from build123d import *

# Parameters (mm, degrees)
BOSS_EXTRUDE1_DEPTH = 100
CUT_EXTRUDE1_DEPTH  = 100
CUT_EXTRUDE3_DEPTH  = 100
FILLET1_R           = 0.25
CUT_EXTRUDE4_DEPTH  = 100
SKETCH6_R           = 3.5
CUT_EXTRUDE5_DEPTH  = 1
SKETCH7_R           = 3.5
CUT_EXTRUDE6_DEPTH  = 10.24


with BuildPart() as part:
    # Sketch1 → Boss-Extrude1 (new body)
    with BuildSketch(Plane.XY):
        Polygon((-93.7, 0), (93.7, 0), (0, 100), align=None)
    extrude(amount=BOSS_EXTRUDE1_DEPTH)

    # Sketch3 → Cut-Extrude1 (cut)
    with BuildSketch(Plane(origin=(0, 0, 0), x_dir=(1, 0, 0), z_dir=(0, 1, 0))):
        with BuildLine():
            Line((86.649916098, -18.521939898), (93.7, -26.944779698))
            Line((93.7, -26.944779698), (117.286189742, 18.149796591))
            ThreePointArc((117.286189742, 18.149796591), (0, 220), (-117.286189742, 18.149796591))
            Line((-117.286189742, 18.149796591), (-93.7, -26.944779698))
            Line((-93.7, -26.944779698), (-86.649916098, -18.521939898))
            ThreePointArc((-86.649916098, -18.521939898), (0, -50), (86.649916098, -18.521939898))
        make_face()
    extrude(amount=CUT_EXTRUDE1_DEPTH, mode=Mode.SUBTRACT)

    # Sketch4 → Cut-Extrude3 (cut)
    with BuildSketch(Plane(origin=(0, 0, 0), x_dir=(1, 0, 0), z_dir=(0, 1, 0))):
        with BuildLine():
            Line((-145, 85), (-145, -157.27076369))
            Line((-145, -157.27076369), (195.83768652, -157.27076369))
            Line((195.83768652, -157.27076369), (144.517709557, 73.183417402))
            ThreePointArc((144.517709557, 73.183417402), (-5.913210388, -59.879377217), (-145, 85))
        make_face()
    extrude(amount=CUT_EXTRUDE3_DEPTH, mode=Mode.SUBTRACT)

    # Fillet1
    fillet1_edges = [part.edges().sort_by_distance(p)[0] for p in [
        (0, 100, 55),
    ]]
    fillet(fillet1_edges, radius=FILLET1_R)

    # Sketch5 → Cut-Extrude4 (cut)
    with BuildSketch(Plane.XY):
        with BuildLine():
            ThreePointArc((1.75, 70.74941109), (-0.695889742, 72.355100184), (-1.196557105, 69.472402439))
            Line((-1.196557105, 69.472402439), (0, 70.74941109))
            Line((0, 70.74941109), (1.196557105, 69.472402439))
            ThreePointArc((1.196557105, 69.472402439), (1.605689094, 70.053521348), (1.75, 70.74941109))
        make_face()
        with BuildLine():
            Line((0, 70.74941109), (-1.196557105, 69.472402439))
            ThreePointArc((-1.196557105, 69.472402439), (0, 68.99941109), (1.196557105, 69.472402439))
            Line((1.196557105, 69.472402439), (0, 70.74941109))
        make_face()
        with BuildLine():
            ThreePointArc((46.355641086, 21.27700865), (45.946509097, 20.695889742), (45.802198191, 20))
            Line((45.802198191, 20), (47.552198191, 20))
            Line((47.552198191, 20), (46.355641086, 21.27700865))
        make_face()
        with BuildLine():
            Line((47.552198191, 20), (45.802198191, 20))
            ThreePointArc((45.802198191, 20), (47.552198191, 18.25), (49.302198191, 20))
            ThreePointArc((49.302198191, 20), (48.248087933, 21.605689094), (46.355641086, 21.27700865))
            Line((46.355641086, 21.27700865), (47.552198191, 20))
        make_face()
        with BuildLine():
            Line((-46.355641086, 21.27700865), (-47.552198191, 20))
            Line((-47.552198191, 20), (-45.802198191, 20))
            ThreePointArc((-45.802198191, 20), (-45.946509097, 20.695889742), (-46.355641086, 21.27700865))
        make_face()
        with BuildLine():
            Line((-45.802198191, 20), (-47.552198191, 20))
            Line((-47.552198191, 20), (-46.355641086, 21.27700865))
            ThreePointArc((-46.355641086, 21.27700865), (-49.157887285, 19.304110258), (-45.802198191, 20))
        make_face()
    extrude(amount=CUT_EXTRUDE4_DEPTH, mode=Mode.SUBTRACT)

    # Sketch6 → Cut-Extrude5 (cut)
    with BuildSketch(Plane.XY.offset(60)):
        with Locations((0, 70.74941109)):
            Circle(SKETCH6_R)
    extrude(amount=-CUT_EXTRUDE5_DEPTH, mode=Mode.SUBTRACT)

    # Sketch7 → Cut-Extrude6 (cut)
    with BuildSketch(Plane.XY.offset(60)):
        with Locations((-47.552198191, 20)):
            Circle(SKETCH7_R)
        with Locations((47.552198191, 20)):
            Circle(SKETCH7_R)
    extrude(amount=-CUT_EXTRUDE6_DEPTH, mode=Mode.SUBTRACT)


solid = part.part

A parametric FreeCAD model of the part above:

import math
import FreeCAD as App
import Part
import Sketcher

V = App.Vector
Q = App.Units.Quantity


def edges_at(feature, points):
    """Names of the edges that pass closest to the given points."""
    edges = feature.Shape.Edges
    near = lambda p: min(range(len(edges)), key=lambda i: edges[i].distToShape(Part.Vertex(*p))[0])
    return sorted({f"Edge{near(p) + 1}" for p in points})


def add_polygon(sketch, points):
    """Adds a closed chain of lines whose ends are joined by coincident constraints."""
    first, n = sketch.GeometryCount, len(points)
    for a, b in zip(points, points[1:] + points[:1]):
        sketch.addGeometry(Part.LineSegment(App.Vector(*a, 0), App.Vector(*b, 0)), False)
    for i in range(n):
        sketch.addConstraint(Sketcher.Constraint("Coincident", first + i, 2, first + (i + 1) % n, 1))

doc = App.newDocument("Part")
body = doc.addObject("PartDesign::Body", "Body")

sketch1 = body.newObject("Sketcher::SketchObject", "Sketch")
sketch1.AttachmentSupport = (doc.getObject("XY_Plane"), [""])
sketch1.MapMode = "FlatFace"
add_polygon(sketch1, [(-94, 0), (94, 0), (0, 100)])
sketch1.addConstraint([
    Sketcher.Constraint("Horizontal", 0),
    Sketcher.Constraint("Symmetric", 0, 2, 2, 2, -1, 1),
    Sketcher.Constraint("PointOnObject", 1, 2, -2),
    Sketcher.Constraint("DistanceX", 0, 1, 0, 2, Q("187.4 mm")),
    Sketcher.Constraint("DistanceY", -1, 1, 1, 2, Q("100 mm")),
])
pad1 = body.newObject("PartDesign::Pad", "Pad")
pad1.Profile = sketch1
pad1.Length = 100

sketch2 = body.newObject("Sketcher::SketchObject", "Sketch001")
sketch2.AttachmentSupport = (doc.getObject("XZ_Plane"), [""])
sketch2.MapMode = "FlatFace"
sketch2.addGeometry([
    Part.LineSegment(V(87, 19, 0), V(94, 27, 0)),
    Part.LineSegment(V(94, 27, 0), V(117, -18, 0)),
    Part.ArcOfCircle(Part.Circle(V(0, -85, 0), V(0, 0, 1), 135), math.radians(150), math.radians(390)),
    Part.LineSegment(V(-117, -18, 0), V(-94, 27, 0)),
    Part.LineSegment(V(-94, 27, 0), V(-87, 19, 0)),
    Part.ArcOfCircle(Part.Circle(V(0, -85, 0), V(0, 0, 1), 135), math.radians(50), math.radians(130)),
], False)
sketch2.addConstraint([
    Sketcher.Constraint("Coincident", 0, 2, 1, 1),
    Sketcher.Constraint("Coincident", 1, 2, 2, 2),
    Sketcher.Constraint("Coincident", 2, 1, 3, 1),
    Sketcher.Constraint("Coincident", 3, 2, 4, 1),
    Sketcher.Constraint("Coincident", 4, 2, 5, 2),
    Sketcher.Constraint("Coincident", 5, 1, 0, 1),
    Sketcher.Constraint("Coincident", 5, 3, 2, 3),
    Sketcher.Constraint("Equal", 2, 5),
    Sketcher.Constraint("Symmetric", 1, 2, 2, 1, -2),
    Sketcher.Constraint("Symmetric", 0, 2, 3, 2, -2),
    Sketcher.Constraint("Horizontal", 4, 2, 5, 1),
    Sketcher.Constraint("Radius", 2, Q("135 mm")),
    Sketcher.Constraint("DistanceY", 2, 3, -1, 1, Q("85 mm")),
    Sketcher.Constraint("DistanceX", -1, 1, 0, 2, Q("93.7 mm")),
    Sketcher.Constraint("Angle", 0, Q("50.07 deg")),
    Sketcher.Constraint("DistanceY", -1, 1, 0, 2, Q("26.94478 mm")),
    Sketcher.Constraint("DistanceX", -1, 1, 1, 2, Q("117.28619 mm")),
])
pocket1 = body.newObject("PartDesign::Pocket", "Pocket")
pocket1.Profile = sketch2
pocket1.Length = 100

sketch3 = body.newObject("Sketcher::SketchObject", "Sketch002")
sketch3.AttachmentSupport = (doc.getObject("XZ_Plane"), [""])
sketch3.MapMode = "FlatFace"
sketch3.addGeometry([
    Part.LineSegment(V(-145, -85, 0), V(-145, 157, 0)),
    Part.LineSegment(V(-145, 157, 0), V(196, 157, 0)),
    Part.LineSegment(V(196, 157, 0), V(145, -73, 0)),
    Part.ArcOfCircle(Part.Circle(V(0, -85, 0), V(0, 0, 1), 145), math.radians(5), math.radians(180)),
], False)
sketch3.addConstraint([
    Sketcher.Constraint("Coincident", 0, 2, 1, 1),
    Sketcher.Constraint("Coincident", 1, 2, 2, 1),
    Sketcher.Constraint("Coincident", 2, 2, 3, 1),
    Sketcher.Constraint("Tangent", 3, 2, 0, 1),
    Sketcher.Constraint("Vertical", 0),
    Sketcher.Constraint("Horizontal", 1),
    Sketcher.Constraint("PointOnObject", 3, 3, -2),
    Sketcher.Constraint("Radius", 3, Q("145 mm")),
    Sketcher.Constraint("DistanceY", 3, 3, -1, 1, Q("85 mm")),
    Sketcher.Constraint("Distance", 2, Q("236.099279 mm")),
    Sketcher.Constraint("DistanceX", 1, 1, 1, 2, Q("340.837687 mm")),
    Sketcher.Constraint("DistanceY", 0, 1, 0, 2, Q("242.270764 mm")),
])
pocket2 = body.newObject("PartDesign::Pocket", "Pocket001")
pocket2.Profile = sketch3
pocket2.Length = 100
doc.recompute()

fillet = body.newObject("PartDesign::Fillet", "Fillet")
fillet.Base = (pocket2, edges_at(pocket2, [(0, 100, 55)]))
fillet.Radius = 0.25

sketch4 = body.newObject("Sketcher::SketchObject", "Sketch003")
sketch4.AttachmentSupport = (doc.getObject("XY_Plane"), [""])
sketch4.MapMode = "FlatFace"
sketch4.addGeometry([
    Part.ArcOfCircle(Part.Circle(V(0, 70.7, 0), V(0, 0, 1), 1.8), math.radians(0), math.radians(227)),
    Part.ArcOfCircle(Part.Circle(V(0, 70.7, 0), V(0, 0, 1), 1.8), math.radians(-133), math.radians(-47)),
    Part.ArcOfCircle(Part.Circle(V(0, 70.7, 0), V(0, 0, 1), 1.8), math.radians(-47), math.radians(0)),
    Part.ArcOfCircle(Part.Circle(V(47.6, 20, 0), V(0, 0, 1), 1.7), math.radians(133), math.radians(180)),
    Part.ArcOfCircle(Part.Circle(V(47.6, 20, 0), V(0, 0, 1), 1.8), math.radians(180), math.radians(360)),
    Part.ArcOfCircle(Part.Circle(V(47.6, 20, 0), V(0, 0, 1), 1.8), math.radians(0), math.radians(133)),
    Part.ArcOfCircle(Part.Circle(V(-47.6, 20, 0), V(0, 0, 1), 1.7), math.radians(0), math.radians(47)),
    Part.ArcOfCircle(Part.Circle(V(-47.6, 20, 0), V(0, 0, 1), 1.8), math.radians(47), math.radians(360)),
], False)
sketch4.addConstraint([
    Sketcher.Constraint("Tangent", 0, 2, 1, 1),
    Sketcher.Constraint("Tangent", 1, 2, 2, 1),
    Sketcher.Constraint("Tangent", 2, 2, 0, 1),
    Sketcher.Constraint("Tangent", 3, 2, 4, 1),
    Sketcher.Constraint("Tangent", 4, 2, 5, 1),
    Sketcher.Constraint("Tangent", 5, 2, 3, 1),
    Sketcher.Constraint("Tangent", 6, 1, 7, 2),
    Sketcher.Constraint("Coincident", 7, 1, 6, 2),
    Sketcher.Constraint("Equal", 2, 3),
    Sketcher.Constraint("Equal", 5, 6),
    Sketcher.Constraint("Symmetric", 3, 3, 6, 3, -2),
    Sketcher.Constraint("Symmetric", 0, 2, 1, 2, -2),
    Sketcher.Constraint("Horizontal", 1, 3, 2, 2),
    Sketcher.Constraint("Horizontal", 7, 3, 3, 2),
    Sketcher.Constraint("Horizontal", 3, 2, 4, 2),
    Sketcher.Constraint("Horizontal", 4, 2, 6, 1),
    Sketcher.Constraint("Horizontal", 5, 2, 7, 1),
    Sketcher.Constraint("Radius", 0, Q("1.75 mm")),
    Sketcher.Constraint("DistanceY", -1, 1, 3, 3, Q("20 mm")),
    Sketcher.Constraint("DistanceX", -1, 1, 3, 3, Q("47.552198 mm")),
    Sketcher.Constraint("DistanceX", 7, 1, 1, 2, Q("47.552198 mm")),
    Sketcher.Constraint("DistanceY", -1, 1, 0, 3, Q("70.749411 mm")),
    Sketcher.Constraint("DistanceX", -1, 1, 5, 2, Q("46.355641 mm")),
])
pocket3 = body.newObject("PartDesign::Pocket", "Pocket002")
pocket3.Profile = sketch4
pocket3.Length = 100
pocket3.Reversed = True

sketch5 = body.newObject("Sketcher::SketchObject", "Sketch004")
sketch5.AttachmentSupport = (doc.getObject("XY_Plane"), [""])
sketch5.MapMode = "FlatFace"
sketch5.AttachmentOffset = App.Placement(V(0, 0, 60), App.Rotation())
sketch5.addGeometry(Part.Circle(V(0, 70.7, 0), V(0, 0, 1), 3.5), False)
sketch5.addConstraint([
    Sketcher.Constraint("PointOnObject", 0, 3, -2),
    Sketcher.Constraint("Diameter", 0, Q("7 mm")),
    Sketcher.Constraint("DistanceY", -1, 1, 0, 3, Q("70.749411 mm")),
])
pocket4 = body.newObject("PartDesign::Pocket", "Pocket003")
pocket4.Profile = sketch5
pocket4.Length = 1

sketch6 = body.newObject("Sketcher::SketchObject", "Sketch005")
sketch6.AttachmentSupport = (doc.getObject("XY_Plane"), [""])
sketch6.MapMode = "FlatFace"
sketch6.AttachmentOffset = App.Placement(V(0, 0, 60), App.Rotation())
sketch6.addGeometry([
    Part.Circle(V(-47.6, 20, 0), V(0, 0, 1), 3.5),
    Part.Circle(V(47.6, 20, 0), V(0, 0, 1), 3.5),
], False)
sketch6.addConstraint([
    Sketcher.Constraint("Equal", 0, 1),
    Sketcher.Constraint("Symmetric", 0, 3, 1, 3, -2),
    Sketcher.Constraint("Diameter", 0, Q("7 mm")),
    Sketcher.Constraint("DistanceY", -1, 1, 0, 3, Q("20 mm")),
    Sketcher.Constraint("DistanceX", 0, 3, -1, 1, Q("47.552198 mm")),
])
pocket5 = body.newObject("PartDesign::Pocket", "Pocket004")
pocket5.Profile = sketch6
pocket5.Length = 10.24

doc.recompute()
